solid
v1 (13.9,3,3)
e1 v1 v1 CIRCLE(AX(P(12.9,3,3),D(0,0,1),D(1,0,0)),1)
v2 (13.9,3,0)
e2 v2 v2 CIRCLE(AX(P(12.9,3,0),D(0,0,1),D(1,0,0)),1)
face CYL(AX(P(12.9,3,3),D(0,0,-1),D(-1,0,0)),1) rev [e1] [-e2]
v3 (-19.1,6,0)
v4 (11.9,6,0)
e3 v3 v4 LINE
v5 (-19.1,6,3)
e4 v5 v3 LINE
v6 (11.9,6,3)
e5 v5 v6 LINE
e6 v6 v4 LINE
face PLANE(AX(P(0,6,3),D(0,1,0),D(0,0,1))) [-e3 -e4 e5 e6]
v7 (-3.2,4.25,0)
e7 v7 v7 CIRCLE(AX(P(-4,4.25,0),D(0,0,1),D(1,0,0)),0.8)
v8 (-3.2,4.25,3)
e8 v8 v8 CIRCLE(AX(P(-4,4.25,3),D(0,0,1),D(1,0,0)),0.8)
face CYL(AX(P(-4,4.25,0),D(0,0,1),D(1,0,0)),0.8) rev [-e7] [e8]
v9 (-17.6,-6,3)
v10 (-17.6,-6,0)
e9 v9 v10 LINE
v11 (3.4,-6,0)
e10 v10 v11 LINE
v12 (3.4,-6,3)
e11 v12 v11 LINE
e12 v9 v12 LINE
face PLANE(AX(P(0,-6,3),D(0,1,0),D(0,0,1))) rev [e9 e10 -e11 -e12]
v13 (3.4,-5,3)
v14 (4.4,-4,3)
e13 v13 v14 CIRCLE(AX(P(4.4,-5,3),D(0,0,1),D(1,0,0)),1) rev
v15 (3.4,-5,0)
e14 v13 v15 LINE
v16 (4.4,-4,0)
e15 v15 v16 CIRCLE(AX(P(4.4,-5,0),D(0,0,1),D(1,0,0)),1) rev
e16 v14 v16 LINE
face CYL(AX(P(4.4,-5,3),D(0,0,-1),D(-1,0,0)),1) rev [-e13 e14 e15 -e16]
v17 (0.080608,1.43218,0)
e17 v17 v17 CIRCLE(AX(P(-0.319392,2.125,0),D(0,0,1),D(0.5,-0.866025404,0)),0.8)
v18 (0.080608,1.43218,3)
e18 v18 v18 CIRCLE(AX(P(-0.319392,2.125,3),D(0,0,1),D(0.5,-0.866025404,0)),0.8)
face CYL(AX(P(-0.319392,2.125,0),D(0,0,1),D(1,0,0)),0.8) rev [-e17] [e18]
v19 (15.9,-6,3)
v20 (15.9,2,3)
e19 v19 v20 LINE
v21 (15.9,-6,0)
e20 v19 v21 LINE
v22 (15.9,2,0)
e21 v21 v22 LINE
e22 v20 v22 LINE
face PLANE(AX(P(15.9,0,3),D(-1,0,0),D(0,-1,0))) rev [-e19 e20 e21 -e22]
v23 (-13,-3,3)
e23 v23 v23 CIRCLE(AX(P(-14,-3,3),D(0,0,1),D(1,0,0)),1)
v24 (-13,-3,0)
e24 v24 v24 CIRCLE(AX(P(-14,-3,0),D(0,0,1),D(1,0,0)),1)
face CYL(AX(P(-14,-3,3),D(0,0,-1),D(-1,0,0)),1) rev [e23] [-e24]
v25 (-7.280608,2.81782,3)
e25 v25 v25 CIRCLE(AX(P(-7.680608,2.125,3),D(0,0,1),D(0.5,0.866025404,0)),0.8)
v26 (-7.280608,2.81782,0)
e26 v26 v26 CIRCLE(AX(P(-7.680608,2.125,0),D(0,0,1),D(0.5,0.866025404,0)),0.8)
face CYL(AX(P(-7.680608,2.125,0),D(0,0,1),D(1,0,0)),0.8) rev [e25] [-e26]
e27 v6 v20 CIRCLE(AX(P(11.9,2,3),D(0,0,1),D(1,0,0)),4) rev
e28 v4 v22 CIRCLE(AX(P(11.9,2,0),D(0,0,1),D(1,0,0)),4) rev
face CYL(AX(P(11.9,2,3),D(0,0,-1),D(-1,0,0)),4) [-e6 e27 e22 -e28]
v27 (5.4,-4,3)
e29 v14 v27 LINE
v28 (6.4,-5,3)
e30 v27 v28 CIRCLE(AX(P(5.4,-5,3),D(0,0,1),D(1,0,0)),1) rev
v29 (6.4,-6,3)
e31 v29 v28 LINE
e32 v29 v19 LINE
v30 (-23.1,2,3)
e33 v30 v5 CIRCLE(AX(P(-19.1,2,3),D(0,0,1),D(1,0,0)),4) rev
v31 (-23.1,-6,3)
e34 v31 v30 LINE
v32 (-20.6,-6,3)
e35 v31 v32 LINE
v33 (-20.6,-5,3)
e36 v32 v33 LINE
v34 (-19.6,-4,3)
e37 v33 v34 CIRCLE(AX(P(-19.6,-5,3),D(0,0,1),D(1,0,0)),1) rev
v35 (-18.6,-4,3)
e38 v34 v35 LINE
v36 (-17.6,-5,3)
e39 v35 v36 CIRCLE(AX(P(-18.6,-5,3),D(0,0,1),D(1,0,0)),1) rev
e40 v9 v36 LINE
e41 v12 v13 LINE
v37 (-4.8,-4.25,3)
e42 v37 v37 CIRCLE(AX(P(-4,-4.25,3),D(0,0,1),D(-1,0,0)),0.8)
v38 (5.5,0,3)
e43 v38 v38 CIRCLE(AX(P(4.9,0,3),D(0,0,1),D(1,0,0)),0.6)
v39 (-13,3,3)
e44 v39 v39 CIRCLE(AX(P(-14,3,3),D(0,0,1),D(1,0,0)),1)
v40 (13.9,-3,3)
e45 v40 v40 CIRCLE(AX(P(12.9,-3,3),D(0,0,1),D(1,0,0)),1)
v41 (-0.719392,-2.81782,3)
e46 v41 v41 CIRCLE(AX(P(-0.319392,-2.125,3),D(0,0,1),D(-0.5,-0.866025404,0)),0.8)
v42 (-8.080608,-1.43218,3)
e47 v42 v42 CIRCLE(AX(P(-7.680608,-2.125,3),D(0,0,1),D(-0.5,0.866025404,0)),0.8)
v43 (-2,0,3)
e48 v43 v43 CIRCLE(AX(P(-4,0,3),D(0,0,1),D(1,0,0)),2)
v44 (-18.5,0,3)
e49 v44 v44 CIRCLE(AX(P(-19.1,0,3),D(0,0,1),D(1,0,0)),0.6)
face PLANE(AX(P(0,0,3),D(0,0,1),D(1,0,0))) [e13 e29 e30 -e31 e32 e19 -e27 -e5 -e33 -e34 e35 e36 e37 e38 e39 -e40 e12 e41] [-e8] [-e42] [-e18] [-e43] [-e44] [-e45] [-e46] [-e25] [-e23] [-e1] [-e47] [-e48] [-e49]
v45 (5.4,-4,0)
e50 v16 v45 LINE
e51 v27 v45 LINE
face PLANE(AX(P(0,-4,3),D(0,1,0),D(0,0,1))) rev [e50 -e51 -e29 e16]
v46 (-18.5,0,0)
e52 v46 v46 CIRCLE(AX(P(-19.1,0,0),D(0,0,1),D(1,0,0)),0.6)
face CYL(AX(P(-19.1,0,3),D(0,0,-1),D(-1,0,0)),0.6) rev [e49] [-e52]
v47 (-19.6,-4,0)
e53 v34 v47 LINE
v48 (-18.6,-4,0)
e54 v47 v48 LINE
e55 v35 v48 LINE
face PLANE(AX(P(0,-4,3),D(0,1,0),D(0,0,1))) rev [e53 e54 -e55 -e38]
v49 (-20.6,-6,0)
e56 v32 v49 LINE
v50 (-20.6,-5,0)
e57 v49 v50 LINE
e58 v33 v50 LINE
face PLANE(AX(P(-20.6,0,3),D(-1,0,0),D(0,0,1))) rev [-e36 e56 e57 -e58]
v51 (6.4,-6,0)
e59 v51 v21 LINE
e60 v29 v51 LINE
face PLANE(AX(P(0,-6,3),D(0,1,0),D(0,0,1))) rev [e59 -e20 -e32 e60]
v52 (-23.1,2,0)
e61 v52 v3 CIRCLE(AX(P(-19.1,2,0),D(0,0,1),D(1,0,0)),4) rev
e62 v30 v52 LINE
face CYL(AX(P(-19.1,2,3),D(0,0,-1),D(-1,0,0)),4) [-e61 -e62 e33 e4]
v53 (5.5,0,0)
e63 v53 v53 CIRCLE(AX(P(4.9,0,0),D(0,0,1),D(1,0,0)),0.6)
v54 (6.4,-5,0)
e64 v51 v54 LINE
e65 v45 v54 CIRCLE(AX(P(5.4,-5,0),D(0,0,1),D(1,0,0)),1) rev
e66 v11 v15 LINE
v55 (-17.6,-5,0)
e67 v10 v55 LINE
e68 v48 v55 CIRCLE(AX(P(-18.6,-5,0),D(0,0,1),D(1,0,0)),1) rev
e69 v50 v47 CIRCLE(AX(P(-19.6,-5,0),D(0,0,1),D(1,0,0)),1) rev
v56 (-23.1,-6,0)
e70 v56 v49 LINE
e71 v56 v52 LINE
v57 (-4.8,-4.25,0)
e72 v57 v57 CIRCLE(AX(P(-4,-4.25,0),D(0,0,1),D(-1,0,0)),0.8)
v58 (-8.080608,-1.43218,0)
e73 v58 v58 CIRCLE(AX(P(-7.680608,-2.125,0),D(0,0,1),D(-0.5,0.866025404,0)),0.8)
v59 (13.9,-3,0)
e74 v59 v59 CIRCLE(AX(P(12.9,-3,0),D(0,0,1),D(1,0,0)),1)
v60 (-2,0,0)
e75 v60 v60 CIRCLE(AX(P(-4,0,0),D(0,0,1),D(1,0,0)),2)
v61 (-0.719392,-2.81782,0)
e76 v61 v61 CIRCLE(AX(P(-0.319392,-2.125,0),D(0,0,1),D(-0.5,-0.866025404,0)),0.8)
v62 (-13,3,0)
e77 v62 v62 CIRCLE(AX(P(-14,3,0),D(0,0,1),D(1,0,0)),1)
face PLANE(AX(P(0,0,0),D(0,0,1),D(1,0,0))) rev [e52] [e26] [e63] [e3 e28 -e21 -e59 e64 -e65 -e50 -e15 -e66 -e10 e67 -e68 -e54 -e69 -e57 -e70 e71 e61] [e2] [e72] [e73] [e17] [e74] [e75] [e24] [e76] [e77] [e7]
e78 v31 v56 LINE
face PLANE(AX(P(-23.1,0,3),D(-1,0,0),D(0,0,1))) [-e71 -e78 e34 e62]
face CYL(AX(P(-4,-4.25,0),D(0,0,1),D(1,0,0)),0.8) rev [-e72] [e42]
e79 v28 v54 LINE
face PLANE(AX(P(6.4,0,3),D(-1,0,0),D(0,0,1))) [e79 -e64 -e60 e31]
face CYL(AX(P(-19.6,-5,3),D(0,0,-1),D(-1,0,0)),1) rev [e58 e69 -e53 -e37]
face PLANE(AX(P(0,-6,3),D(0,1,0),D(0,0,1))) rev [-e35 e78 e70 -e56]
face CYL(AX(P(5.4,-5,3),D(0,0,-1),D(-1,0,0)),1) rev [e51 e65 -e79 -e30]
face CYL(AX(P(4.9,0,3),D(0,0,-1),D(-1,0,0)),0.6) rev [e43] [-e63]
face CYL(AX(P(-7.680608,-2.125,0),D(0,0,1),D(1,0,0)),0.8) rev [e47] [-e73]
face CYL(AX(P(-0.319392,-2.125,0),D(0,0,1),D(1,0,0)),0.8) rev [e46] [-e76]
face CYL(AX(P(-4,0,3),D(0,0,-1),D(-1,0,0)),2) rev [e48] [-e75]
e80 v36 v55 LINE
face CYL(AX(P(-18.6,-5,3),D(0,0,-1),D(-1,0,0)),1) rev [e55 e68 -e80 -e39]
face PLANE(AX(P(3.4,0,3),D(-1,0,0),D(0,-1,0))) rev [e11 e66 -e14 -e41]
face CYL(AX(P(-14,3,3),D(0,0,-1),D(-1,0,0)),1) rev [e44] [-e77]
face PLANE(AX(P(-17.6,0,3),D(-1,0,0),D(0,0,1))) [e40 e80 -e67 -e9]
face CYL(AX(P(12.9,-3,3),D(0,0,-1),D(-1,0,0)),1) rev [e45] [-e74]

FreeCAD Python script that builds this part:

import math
import FreeCAD as App
import Part
import Sketcher
from FreeCAD import Vector

doc = App.newDocument("Part")
body = doc.addObject("PartDesign::Body", "Body")

# Sketch on XY plane
sketch1 = body.newObject("Sketcher::SketchObject", "Sketch")
sketch1.AttachmentSupport = (doc.getObject("XY_Plane"), [""])
sketch1.MapMode = "FlatFace"
sketch1.addGeometry(Part.LineSegment(Vector(-23.1, 2, 0), Vector(-23.1, -6, 0)), False)
sketch1.addGeometry(Part.LineSegment(Vector(-23.1, -6, 0), Vector(-20.6, -6, 0)), False)
sketch1.addGeometry(Part.LineSegment(Vector(-20.6, -6, 0), Vector(-20.6, -5, 0)), False)
sketch1.addGeometry(Part.ArcOfCircle(Part.Circle(Vector(-19.6, -5, 0), Vector(0, 0, 1), 1), math.radians(90), math.radians(180)), False)
sketch1.addGeometry(Part.LineSegment(Vector(-19.6, -4, 0), Vector(-18.6, -4, 0)), False)
sketch1.addGeometry(Part.ArcOfCircle(Part.Circle(Vector(-18.6, -5, 0), Vector(0, 0, 1), 1), math.radians(0), math.radians(90)), False)
sketch1.addGeometry(Part.LineSegment(Vector(-17.6, -5, 0), Vector(-17.6, -6, 0)), False)
sketch1.addGeometry(Part.LineSegment(Vector(-17.6, -6, 0), Vector(3.4, -6, 0)), False)
sketch1.addGeometry(Part.LineSegment(Vector(3.4, -6, 0), Vector(3.4, -5, 0)), False)
sketch1.addGeometry(Part.ArcOfCircle(Part.Circle(Vector(4.4, -5, 0), Vector(0, 0, 1), 1), math.radians(90), math.radians(180)), False)
sketch1.addGeometry(Part.LineSegment(Vector(4.4, -4, 0), Vector(5.4, -4, 0)), False)
sketch1.addGeometry(Part.ArcOfCircle(Part.Circle(Vector(5.4, -5, 0), Vector(0, 0, 1), 1), math.radians(0), math.radians(90)), False)
sketch1.addGeometry(Part.LineSegment(Vector(6.4, -5, 0), Vector(6.4, -6, 0)), False)
sketch1.addGeometry(Part.LineSegment(Vector(6.4, -6, 0), Vector(15.9, -6, 0)), False)
sketch1.addGeometry(Part.LineSegment(Vector(15.9, -6, 0), Vector(15.9, 2, 0)), False)
sketch1.addGeometry(Part.ArcOfCircle(Part.Circle(Vector(11.9, 2, 0), Vector(0, 0, 1), 4), math.radians(0), math.radians(90)), False)
sketch1.addGeometry(Part.LineSegment(Vector(11.9, 6, 0), Vector(-19.1, 6, 0)), False)
sketch1.addGeometry(Part.ArcOfCircle(Part.Circle(Vector(-19.1, 2, 0), Vector(0, 0, 1), 4), math.radians(90), math.radians(180)), False)
sketch1.addGeometry(Part.Circle(Vector(-14, -3, 0), Vector(0, 0, 1), 1), False)
sketch1.addGeometry(Part.Circle(Vector(12.9, -3, 0), Vector(0, 0, 1), 1), False)
sketch1.addGeometry(Part.Circle(Vector(-19.1, 0, 0), Vector(0, 0, 1), 0.6), False)
sketch1.addGeometry(Part.Circle(Vector(-4, 0, 0), Vector(0, 0, 1), 2), False)
sketch1.addGeometry(Part.Circle(Vector(-14, 3, 0), Vector(0, 0, 1), 1), False)
sketch1.addGeometry(Part.Circle(Vector(4.9, 0, 0), Vector(0, 0, 1), 0.6), False)
sketch1.addGeometry(Part.Circle(Vector(12.9, 3, 0), Vector(0, 0, 1), 1), False)
sketch1.addConstraint(Sketcher.Constraint("Coincident", 0, 2, 1, 1))
sketch1.addConstraint(Sketcher.Constraint("Coincident", 1, 2, 2, 1))
sketch1.addConstraint(Sketcher.Constraint("Tangent", 2, 2, 3, 2))
sketch1.addConstraint(Sketcher.Constraint("Tangent", 3, 1, 4, 1))
sketch1.addConstraint(Sketcher.Constraint("Tangent", 4, 2, 5, 2))
sketch1.addConstraint(Sketcher.Constraint("Tangent", 5, 1, 6, 1))
sketch1.addConstraint(Sketcher.Constraint("Coincident", 6, 2, 7, 1))
sketch1.addConstraint(Sketcher.Constraint("Coincident", 7, 2, 8, 1))
sketch1.addConstraint(Sketcher.Constraint("Tangent", 8, 2, 9, 2))
sketch1.addConstraint(Sketcher.Constraint("Tangent", 9, 1, 10, 1))
sketch1.addConstraint(Sketcher.Constraint("Tangent", 10, 2, 11, 2))
sketch1.addConstraint(Sketcher.Constraint("Tangent", 11, 1, 12, 1))
sketch1.addConstraint(Sketcher.Constraint("Coincident", 12, 2, 13, 1))
sketch1.addConstraint(Sketcher.Constraint("Coincident", 13, 2, 14, 1))
sketch1.addConstraint(Sketcher.Constraint("Tangent", 14, 2, 15, 1))
sketch1.addConstraint(Sketcher.Constraint("Tangent", 15, 2, 16, 1))
sketch1.addConstraint(Sketcher.Constraint("Tangent", 16, 2, 17, 1))
sketch1.addConstraint(Sketcher.Constraint("Tangent", 17, 2, 0, 1))
sketch1.addConstraint(Sketcher.Constraint("Vertical", 0))
sketch1.addConstraint(Sketcher.Constraint("Horizontal", 1))
sketch1.addConstraint(Sketcher.Constraint("Vertical", 2))
sketch1.addConstraint(Sketcher.Constraint("Horizontal", 4))
sketch1.addConstraint(Sketcher.Constraint("Vertical", 6))
sketch1.addConstraint(Sketcher.Constraint("Horizontal", 7))
sketch1.addConstraint(Sketcher.Constraint("Vertical", 8))
sketch1.addConstraint(Sketcher.Constraint("Horizontal", 10))
sketch1.addConstraint(Sketcher.Constraint("Vertical", 12))
sketch1.addConstraint(Sketcher.Constraint("Horizontal", 13))
sketch1.addConstraint(Sketcher.Constraint("Vertical", 14))
sketch1.addConstraint(Sketcher.Constraint("Horizontal", 16))
sketch1.addConstraint(Sketcher.Constraint("Equal", 3, 5))
sketch1.addConstraint(Sketcher.Constraint("Equal", 5, 9))
sketch1.addConstraint(Sketcher.Constraint("Equal", 9, 11))
sketch1.addConstraint(Sketcher.Constraint("Equal", 15, 17))
sketch1.addConstraint(Sketcher.Constraint("Equal", 11, 18))
sketch1.addConstraint(Sketcher.Constraint("Equal", 18, 19))
sketch1.addConstraint(Sketcher.Constraint("Equal", 19, 22))
sketch1.addConstraint(Sketcher.Constraint("Equal", 20, 23))
sketch1.addConstraint(Sketcher.Constraint("Equal", 22, 24))
sketch1.addConstraint(Sketcher.Constraint("Symmetric", 18, 3, 22, 3, -1))
sketch1.addConstraint(Sketcher.Constraint("Symmetric", 19, 3, 24, 3, -1))
sketch1.addConstraint(Sketcher.Constraint("PointOnObject", 20, 3, -1))
sketch1.addConstraint(Sketcher.Constraint("PointOnObject", 21, 3, -1))
sketch1.addConstraint(Sketcher.Constraint("PointOnObject", 23, 3, -1))
sketch1.addConstraint(Sketcher.Constraint("Horizontal", 5, 3, 9, 3))
sketch1.addConstraint(Sketcher.Constraint("Horizontal", 18, 3, 19, 3))
sketch1.addConstraint(Sketcher.Constraint("Horizontal", 1, 2, 6, 2))
sketch1.addConstraint(Sketcher.Constraint("Horizontal", 7, 2, 12, 2))
sketch1.addConstraint(Sketcher.Constraint("Vertical", 17, 3, 20, 3))
sketch1.addConstraint(Sketcher.Constraint("Equal", 4, 10))
sketch1.addConstraint(Sketcher.Constraint("Equal", 10, 2))
sketch1.addConstraint(Sketcher.Constraint("Diameter", 18, 2.0))
sketch1.addConstraint(Sketcher.Constraint("Diameter", 21, 4.0))
sketch1.addConstraint(Sketcher.Constraint("Radius", 15, 4.0))
sketch1.addConstraint(Sketcher.Constraint("Diameter", 20, 1.2))
sketch1.addConstraint(Sketcher.Constraint("DistanceX", 4, 1, 4, 2, 1.0))
sketch1.addConstraint(Sketcher.Constraint("DistanceX", 7, 1, 7, 2, 21.0))
sketch1.addConstraint(Sketcher.Constraint("DistanceX", 16, 2, 16, 1, 31.0))
sketch1.addConstraint(Sketcher.Constraint("DistanceY", 0, 2, 0, 1, 8.0))
sketch1.addConstraint(Sketcher.Constraint("DistanceX", 1, 1, 1, 2, 2.5))
sketch1.addConstraint(Sketcher.Constraint("DistanceY", 3, 3, -1, 1, 5.0))
sketch1.addConstraint(Sketcher.Constraint("DistanceX", 18, 3, -1, 1, 14.0))
sketch1.addConstraint(Sketcher.Constraint("DistanceY", 18, 3, -1, 1, 3.0))
sketch1.addConstraint(Sketcher.Constraint("DistanceX", 21, 3, -1, 1, 4.0))
sketch1.addConstraint(Sketcher.Constraint("DistanceX", 15, 3, 19, 3, 1.0))
sketch1.addConstraint(Sketcher.Constraint("DistanceX", 23, 3, 15, 3, 7.0))
sketch1.addConstraint(Sketcher.Constraint("DistanceX", 3, 3, -1, 1, 19.6))
pad1 = body.newObject("PartDesign::Pad", "Pad")
pad1.Profile = sketch1
pad1.Length = 3

# Sketch on XY plane
sketch2 = body.newObject("Sketcher::SketchObject", "Sketch001")
sketch2.AttachmentSupport = (doc.getObject("XY_Plane"), [""])
sketch2.MapMode = "FlatFace"
sketch2.AttachmentOffset = App.Placement(Vector(0, 0, 3), App.Rotation())
sketch2.addGeometry(Part.Circle(Vector(-4, 4.2, 0), Vector(0, 0, 1), 0.8), False)
sketch2.addConstraint(Sketcher.Constraint("Diameter", 0, 1.6))
sketch2.addConstraint(Sketcher.Constraint("DistanceX", 0, 3, -1, 1, 4.0))
sketch2.addConstraint(Sketcher.Constraint("DistanceY", -1, 1, 0, 3, 4.25))
pocket1 = body.newObject("PartDesign::Pocket", "Pocket")
pocket1.Profile = sketch2
pocket1.Length = 3
doc.recompute()

datumline = body.newObject("PartDesign::Line", "DatumLine")
datumline.Placement = App.Placement(Vector(-4, 0, 0), App.Rotation(Vector(0, 0, 1), Vector(0, 0, 1)))
polarpattern = body.newObject("PartDesign::PolarPattern", "PolarPattern")
polarpattern.Originals = [pocket1]
polarpattern.Axis = (datumline, [""])
polarpattern.Angle = 360
polarpattern.Occurrences = 6
body.Tip = polarpattern

doc.recompute()
